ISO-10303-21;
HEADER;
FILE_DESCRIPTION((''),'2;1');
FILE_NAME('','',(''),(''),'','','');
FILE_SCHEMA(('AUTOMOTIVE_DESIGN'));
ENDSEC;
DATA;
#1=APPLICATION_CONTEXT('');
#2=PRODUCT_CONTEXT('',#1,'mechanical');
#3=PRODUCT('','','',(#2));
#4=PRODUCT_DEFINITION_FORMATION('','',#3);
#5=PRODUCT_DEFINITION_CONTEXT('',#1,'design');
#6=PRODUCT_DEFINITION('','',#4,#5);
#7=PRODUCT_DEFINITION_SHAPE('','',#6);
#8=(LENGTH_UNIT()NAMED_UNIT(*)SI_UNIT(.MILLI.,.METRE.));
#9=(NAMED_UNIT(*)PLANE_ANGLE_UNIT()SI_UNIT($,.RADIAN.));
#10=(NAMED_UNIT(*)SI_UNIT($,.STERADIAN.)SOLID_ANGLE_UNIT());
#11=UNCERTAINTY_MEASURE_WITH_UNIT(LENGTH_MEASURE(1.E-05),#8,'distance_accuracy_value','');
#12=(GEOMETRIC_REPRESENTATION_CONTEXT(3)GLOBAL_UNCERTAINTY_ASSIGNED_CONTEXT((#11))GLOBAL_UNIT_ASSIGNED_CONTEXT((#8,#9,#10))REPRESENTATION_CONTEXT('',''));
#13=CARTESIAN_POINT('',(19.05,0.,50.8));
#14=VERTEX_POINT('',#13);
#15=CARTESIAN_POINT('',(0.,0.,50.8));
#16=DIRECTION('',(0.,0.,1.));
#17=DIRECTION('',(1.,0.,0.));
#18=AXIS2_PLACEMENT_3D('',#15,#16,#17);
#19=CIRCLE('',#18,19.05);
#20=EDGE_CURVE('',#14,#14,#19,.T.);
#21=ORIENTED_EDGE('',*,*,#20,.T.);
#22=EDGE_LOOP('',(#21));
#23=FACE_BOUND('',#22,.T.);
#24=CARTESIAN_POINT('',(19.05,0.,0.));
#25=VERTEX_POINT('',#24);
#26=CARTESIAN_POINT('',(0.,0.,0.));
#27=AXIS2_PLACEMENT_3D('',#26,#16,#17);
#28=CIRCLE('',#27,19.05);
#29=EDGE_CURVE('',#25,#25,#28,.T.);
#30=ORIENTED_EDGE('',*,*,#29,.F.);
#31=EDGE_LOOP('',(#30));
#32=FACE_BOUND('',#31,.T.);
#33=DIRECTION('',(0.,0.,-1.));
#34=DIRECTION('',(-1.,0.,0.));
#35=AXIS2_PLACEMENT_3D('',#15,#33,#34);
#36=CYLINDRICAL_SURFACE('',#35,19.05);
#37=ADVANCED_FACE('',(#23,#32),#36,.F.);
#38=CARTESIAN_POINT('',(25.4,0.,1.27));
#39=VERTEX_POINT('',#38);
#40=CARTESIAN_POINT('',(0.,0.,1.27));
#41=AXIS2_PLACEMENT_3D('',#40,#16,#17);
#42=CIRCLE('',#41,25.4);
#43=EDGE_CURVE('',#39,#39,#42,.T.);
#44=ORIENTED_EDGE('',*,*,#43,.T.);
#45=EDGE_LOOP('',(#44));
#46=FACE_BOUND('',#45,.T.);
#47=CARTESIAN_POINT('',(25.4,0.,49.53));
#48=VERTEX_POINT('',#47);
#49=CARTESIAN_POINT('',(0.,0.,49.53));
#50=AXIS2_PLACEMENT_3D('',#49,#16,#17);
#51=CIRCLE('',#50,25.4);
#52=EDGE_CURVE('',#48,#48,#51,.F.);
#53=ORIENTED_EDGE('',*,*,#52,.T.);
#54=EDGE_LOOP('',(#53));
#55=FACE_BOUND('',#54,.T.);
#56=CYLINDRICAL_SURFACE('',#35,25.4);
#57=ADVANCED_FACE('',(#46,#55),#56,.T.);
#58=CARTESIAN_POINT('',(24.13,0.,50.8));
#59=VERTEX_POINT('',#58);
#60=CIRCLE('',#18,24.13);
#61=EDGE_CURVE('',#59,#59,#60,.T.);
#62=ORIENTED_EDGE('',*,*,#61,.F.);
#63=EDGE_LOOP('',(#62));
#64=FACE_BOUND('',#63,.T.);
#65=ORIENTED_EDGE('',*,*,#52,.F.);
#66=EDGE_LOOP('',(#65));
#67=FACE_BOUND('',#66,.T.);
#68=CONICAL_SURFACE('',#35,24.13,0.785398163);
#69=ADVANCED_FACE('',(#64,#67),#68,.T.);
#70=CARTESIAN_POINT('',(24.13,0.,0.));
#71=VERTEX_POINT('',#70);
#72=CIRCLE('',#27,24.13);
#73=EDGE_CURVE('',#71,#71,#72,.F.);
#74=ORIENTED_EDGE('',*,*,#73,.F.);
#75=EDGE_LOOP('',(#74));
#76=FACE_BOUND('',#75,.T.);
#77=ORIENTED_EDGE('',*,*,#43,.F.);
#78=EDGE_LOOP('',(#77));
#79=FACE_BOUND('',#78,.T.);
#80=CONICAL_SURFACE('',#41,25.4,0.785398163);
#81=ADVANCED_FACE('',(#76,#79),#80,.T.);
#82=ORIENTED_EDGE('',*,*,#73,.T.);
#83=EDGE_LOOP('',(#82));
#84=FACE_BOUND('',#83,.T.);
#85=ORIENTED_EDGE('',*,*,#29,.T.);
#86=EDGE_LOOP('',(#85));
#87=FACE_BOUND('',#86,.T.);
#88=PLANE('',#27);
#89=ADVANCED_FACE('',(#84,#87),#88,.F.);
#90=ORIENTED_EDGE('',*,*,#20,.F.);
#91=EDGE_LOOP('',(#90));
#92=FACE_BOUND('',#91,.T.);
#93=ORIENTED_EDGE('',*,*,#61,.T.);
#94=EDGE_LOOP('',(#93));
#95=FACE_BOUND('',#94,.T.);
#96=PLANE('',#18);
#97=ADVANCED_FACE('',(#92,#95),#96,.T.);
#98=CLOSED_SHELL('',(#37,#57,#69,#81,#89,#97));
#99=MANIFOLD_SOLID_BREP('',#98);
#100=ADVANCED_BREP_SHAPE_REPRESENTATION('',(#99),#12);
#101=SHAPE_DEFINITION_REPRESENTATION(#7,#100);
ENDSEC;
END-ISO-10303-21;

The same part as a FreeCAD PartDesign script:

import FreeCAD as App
import Part
import Sketcher
Q = App.Units.Quantity


def edges_at(feature, points):
    """Names of the edges that pass closest to the given points."""
    edges = feature.Shape.Edges
    near = lambda p: min(range(len(edges)), key=lambda i: edges[i].distToShape(Part.Vertex(*p))[0])
    return sorted({f"Edge{near(p) + 1}" for p in points})

doc = App.newDocument("Part")
body = doc.addObject("PartDesign::Body", "Body")

sketch1 = body.newObject("Sketcher::SketchObject", "Sketch")
sketch1.AttachmentSupport = (doc.getObject("XY_Plane"), [""])
sketch1.MapMode = "FlatFace"
sketch1.addGeometry([
    Part.Circle(App.Vector(0, 0, 0), App.Vector(0, 0, 1), 25.4),
    Part.Circle(App.Vector(0, 0, 0), App.Vector(0, 0, 1), 19.05),
], False)
sketch1.addConstraint([
    Sketcher.Constraint("Coincident", 0, 3, -1, 1),
    Sketcher.Constraint("Coincident", 1, 3, -1, 1),
    Sketcher.Constraint("Diameter", 0, Q("2 in")),
    Sketcher.Constraint("Diameter", 1, Q("1.5 in")),
])
pad1 = body.newObject("PartDesign::Pad", "Pad")
pad1.Profile = sketch1
pad1.Length = Q("2 in")
doc.recompute()

chamfer = body.newObject("PartDesign::Chamfer", "Chamfer")
chamfer.Base = (pad1, edges_at(pad1, [(-25.4, 0, 0)]))
chamfer.Size = Q("0.05 in")
doc.recompute()

chamfer2 = body.newObject("PartDesign::Chamfer", "Chamfer001")
chamfer2.Base = (chamfer, edges_at(chamfer, [(-25.4, 0, 50.8)]))
chamfer2.Size = Q("0.05 in")

doc.recompute()
